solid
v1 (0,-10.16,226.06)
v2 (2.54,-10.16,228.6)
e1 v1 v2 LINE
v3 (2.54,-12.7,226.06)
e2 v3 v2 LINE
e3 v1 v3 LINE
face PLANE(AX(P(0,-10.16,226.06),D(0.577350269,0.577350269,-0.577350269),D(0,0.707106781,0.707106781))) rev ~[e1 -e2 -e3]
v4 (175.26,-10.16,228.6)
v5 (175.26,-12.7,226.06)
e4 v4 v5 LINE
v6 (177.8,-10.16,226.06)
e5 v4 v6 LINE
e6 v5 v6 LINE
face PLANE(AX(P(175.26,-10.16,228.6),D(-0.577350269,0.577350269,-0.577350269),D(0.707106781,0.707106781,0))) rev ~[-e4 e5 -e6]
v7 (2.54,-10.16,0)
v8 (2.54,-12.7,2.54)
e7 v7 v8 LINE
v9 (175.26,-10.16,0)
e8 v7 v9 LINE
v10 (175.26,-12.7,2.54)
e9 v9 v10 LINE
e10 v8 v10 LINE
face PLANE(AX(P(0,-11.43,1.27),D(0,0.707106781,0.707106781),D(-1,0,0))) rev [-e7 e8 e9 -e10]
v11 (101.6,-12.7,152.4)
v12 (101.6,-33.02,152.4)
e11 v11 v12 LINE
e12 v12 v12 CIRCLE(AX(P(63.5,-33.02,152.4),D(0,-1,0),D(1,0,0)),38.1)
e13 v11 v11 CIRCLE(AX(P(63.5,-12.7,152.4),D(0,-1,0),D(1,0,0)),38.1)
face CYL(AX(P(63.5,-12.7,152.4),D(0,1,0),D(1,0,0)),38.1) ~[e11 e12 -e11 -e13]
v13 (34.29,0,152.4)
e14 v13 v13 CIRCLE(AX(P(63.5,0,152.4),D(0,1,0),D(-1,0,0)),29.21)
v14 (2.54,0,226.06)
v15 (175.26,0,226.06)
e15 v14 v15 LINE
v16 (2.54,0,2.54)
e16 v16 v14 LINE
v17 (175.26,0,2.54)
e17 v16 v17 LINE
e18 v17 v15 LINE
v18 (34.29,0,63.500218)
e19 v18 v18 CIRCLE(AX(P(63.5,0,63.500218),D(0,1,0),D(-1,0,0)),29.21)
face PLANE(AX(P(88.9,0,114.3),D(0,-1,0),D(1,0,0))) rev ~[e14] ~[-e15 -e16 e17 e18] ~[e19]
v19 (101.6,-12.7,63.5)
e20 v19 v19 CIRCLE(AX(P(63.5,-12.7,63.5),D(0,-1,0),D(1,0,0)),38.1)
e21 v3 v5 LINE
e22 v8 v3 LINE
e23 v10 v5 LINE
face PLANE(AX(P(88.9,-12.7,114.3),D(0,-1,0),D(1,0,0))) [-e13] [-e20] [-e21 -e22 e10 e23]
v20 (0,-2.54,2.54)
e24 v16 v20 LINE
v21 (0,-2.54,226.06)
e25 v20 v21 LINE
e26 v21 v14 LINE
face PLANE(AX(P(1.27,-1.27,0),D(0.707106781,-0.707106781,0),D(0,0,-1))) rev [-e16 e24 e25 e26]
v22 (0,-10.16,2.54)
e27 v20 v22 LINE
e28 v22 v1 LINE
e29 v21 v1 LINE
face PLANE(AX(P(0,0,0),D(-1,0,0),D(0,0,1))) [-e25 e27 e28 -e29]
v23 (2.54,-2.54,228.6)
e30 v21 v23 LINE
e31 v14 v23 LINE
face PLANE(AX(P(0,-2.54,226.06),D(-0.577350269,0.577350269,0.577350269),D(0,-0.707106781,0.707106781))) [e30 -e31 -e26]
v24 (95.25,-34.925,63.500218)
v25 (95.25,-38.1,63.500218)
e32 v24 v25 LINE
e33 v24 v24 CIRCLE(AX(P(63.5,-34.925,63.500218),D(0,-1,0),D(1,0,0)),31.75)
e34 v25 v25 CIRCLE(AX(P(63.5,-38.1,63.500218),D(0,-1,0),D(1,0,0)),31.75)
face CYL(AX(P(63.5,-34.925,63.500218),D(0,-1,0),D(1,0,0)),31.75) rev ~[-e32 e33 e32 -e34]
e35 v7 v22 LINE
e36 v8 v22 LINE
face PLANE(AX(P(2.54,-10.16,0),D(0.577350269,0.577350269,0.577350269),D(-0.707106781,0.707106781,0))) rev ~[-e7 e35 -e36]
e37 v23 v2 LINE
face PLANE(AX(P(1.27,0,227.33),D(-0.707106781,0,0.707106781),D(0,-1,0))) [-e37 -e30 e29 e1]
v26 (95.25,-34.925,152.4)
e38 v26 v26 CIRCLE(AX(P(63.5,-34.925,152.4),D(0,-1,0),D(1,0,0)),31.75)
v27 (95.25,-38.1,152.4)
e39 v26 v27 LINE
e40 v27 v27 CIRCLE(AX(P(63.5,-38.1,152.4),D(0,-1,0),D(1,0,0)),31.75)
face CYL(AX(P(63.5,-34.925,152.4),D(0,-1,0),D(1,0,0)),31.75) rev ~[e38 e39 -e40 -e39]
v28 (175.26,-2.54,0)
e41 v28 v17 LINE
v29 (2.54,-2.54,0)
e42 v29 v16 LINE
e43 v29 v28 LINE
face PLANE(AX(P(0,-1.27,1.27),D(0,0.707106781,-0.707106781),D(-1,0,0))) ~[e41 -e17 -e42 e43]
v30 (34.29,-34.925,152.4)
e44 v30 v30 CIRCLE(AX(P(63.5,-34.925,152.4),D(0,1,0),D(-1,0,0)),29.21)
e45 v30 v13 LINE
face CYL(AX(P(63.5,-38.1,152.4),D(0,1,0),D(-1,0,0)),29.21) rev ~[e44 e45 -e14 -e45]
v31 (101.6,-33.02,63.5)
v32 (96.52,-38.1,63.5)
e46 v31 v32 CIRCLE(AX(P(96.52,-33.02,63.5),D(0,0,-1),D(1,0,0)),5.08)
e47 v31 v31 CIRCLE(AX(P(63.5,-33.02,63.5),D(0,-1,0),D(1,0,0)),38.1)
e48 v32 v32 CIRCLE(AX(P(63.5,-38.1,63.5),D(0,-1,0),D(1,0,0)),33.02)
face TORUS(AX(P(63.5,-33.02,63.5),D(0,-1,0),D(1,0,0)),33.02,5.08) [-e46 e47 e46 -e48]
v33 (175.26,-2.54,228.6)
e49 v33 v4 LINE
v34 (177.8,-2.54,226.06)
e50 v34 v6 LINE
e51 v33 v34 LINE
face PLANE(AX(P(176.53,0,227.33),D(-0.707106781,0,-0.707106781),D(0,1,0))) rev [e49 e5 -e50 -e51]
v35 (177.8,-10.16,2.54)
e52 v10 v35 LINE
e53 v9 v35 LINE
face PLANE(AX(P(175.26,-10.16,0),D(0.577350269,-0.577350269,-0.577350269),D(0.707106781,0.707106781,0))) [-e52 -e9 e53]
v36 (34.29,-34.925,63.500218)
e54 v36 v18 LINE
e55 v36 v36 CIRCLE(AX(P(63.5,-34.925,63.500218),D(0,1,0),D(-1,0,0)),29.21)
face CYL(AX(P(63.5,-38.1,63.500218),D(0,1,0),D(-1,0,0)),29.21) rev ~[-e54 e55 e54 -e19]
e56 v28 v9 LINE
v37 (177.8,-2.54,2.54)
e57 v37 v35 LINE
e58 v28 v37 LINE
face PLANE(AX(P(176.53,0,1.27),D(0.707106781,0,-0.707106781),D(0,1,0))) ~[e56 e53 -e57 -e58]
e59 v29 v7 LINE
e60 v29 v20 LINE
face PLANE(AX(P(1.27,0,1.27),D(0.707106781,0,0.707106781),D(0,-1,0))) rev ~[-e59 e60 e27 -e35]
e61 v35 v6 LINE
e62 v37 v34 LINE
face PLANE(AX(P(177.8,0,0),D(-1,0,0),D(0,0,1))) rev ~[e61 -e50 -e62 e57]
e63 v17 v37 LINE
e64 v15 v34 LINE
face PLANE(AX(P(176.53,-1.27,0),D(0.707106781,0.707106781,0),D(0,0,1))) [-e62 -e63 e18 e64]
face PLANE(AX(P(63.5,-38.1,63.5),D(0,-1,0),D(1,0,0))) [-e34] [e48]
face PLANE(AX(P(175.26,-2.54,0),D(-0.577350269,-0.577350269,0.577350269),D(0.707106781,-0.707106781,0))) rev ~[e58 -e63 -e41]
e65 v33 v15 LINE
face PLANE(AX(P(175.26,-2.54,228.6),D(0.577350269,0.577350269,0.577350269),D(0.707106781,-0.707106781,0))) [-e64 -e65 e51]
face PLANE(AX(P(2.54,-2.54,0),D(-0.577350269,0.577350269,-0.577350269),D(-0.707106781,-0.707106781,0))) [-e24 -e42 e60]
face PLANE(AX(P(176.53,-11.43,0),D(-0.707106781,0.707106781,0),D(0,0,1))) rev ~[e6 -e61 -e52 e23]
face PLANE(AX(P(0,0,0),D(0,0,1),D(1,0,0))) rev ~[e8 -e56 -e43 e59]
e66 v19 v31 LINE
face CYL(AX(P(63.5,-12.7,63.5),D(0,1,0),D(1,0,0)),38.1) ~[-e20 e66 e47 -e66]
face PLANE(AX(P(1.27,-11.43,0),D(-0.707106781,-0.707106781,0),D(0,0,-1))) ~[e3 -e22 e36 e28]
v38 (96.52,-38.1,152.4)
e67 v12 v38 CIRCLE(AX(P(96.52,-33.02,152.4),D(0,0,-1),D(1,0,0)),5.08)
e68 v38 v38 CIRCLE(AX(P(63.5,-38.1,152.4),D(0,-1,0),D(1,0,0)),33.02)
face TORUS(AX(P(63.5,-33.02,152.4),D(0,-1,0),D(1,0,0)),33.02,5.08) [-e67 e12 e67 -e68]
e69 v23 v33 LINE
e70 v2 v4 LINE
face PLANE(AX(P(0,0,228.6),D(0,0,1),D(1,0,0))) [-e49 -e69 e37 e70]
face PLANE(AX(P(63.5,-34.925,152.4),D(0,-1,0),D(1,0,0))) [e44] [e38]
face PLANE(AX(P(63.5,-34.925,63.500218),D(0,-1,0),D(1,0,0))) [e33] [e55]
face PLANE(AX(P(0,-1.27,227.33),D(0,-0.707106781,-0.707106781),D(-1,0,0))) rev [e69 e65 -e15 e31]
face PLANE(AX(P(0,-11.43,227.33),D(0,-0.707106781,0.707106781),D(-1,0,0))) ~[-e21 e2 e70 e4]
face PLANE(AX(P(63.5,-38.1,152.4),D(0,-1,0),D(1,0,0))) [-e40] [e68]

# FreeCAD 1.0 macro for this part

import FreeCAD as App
import Part
import Sketcher

V = App.Vector
Q = App.Units.Quantity


def edges_at(feature, points):
    """Names of the edges that pass closest to the given points."""
    edges = feature.Shape.Edges
    near = lambda p: min(range(len(edges)), key=lambda i: edges[i].distToShape(Part.Vertex(*p))[0])
    return sorted({f"Edge{near(p) + 1}" for p in points})

doc = App.newDocument("Part")
body = doc.addObject("PartDesign::Body", "Body")

# Sketch on XZ plane
sketch1 = body.newObject("Sketcher::SketchObject", "Sketch")
sketch1.AttachmentSupport = (doc.getObject("XZ_Plane"), [""])
sketch1.MapMode = "FlatFace"
sketch1.addGeometry([
    Part.LineSegment(V(0, 229, 0), V(0, 0, 0)),
    Part.LineSegment(V(0, 0, 0), V(178, 0, 0)),
    Part.LineSegment(V(178, 0, 0), V(178, 229, 0)),
    Part.LineSegment(V(178, 229, 0), V(0, 229, 0)),
], False)
sketch1.addConstraint([
    Sketcher.Constraint("Coincident", 0, 2, 1, 1),
    Sketcher.Constraint("Coincident", 1, 2, 2, 1),
    Sketcher.Constraint("Coincident", 2, 2, 3, 1),
    Sketcher.Constraint("Coincident", 3, 2, 0, 1),
    Sketcher.Constraint("Vertical", 0),
    Sketcher.Constraint("Horizontal", 1),
    Sketcher.Constraint("Vertical", 2),
    Sketcher.Constraint("Horizontal", 3),
    Sketcher.Constraint("Coincident", 0, 2, -1, 1),
    Sketcher.Constraint("DistanceX", 1, 1, 1, 2, Q("7 in")),
    Sketcher.Constraint("DistanceY", 0, 2, 0, 1, Q("9 in")),
])
pad1 = body.newObject("PartDesign::Pad", "Pad")
pad1.Profile = sketch1
pad1.Length = Q("0.5 in")

# Sketch on XZ plane
sketch2 = body.newObject("Sketcher::SketchObject", "Sketch001")
sketch2.AttachmentSupport = (doc.getObject("XZ_Plane"), [""])
sketch2.MapMode = "FlatFace"
sketch2.AttachmentOffset = App.Placement(V(0, 0, 0.5 * 25.4), App.Rotation())
sketch2.addGeometry([
    Part.Circle(V(64, 152, 0), V(0, 0, 1), 38),
    Part.Circle(V(64, 64, 0), V(0, 0, 1), 38),
], False)
sketch2.addConstraint([
    Sketcher.Constraint("Equal", 0, 1),
    Sketcher.Constraint("Vertical", 0, 3, 1, 3),
    Sketcher.Constraint("Diameter", 0, Q("3 in")),
    Sketcher.Constraint("DistanceY", -1, 1, 0, 3, Q("6 in")),
    Sketcher.Constraint("DistanceX", -1, 1, 0, 3, Q("2.5 in")),
    Sketcher.Constraint("DistanceY", -1, 1, 1, 3, Q("2.5 in")),
])
pad2 = body.newObject("PartDesign::Pad", "Pad001")
pad2.Profile = sketch2
pad2.Length = Q("1 in")
doc.recompute()

chamfer = body.newObject("PartDesign::Chamfer", "Chamfer")
chamfer.Base = (pad2, edges_at(pad2, [
    (177.8, -12.7, 114.3),
    (177.8, 0, 114.3),
    (88.9, -12.7, 228.6),
    (88.9, 0, 228.6),
    (0, -12.7, 114.3),
    (0, 0, 114.3),
    (88.9, -12.7, 0),
    (88.9, 0, 0),
    (0, -6.35, 0),
    (177.8, -6.35, 0),
    (0, -6.35, 228.6),
    (177.8, -6.35, 228.6),
]))
chamfer.Size = Q("0.1 in")
doc.recompute()

fillet = body.newObject("PartDesign::Fillet", "Fillet")
fillet.Base = (chamfer, edges_at(chamfer, [(25.4, -38.1, 63.5), (25.4, -38.1, 152.4)]))
fillet.Radius = Q("0.2 in")

# Sketch on XZ plane
sketch3 = body.newObject("Sketcher::SketchObject", "Sketch002")
sketch3.AttachmentSupport = (doc.getObject("XZ_Plane"), [""])
sketch3.MapMode = "FlatFace"
sketch3.AttachmentOffset = App.Placement(V(0, 0, 1.5 * 25.4), App.Rotation())
sketch3.addGeometry([
    Part.Circle(V(64, 152, 0), V(0, 0, 1), 29),
    Part.Circle(V(64, 64, 0), V(0, 0, 1), 29),
], False)
sketch3.addConstraint([
    Sketcher.Constraint("Equal", 0, 1),
    Sketcher.Constraint("Vertical", 0, 3, 1, 3),
    Sketcher.Constraint("Diameter", 0, Q("2.3 in")),
    Sketcher.Constraint("DistanceY", -1, 1, 0, 3, Q("6 in")),
    Sketcher.Constraint("DistanceX", -1, 1, 0, 3, Q("2.5 in")),
    Sketcher.Constraint("DistanceY", -1, 1, 1, 3, Q("63.500218 mm")),
])
doc.recompute()
hole = body.newObject("PartDesign::Hole", "Hole")
hole.Profile = sketch3
hole.ThreadType = "None"
hole.Diameter = Q("2.3 in")
hole.DepthType = "ThroughAll"
hole.HoleCutType = "Counterbore"
hole.HoleCutDiameter = Q("2.5 in")
hole.HoleCutDepth = Q("0.125 in")

doc.recompute()
